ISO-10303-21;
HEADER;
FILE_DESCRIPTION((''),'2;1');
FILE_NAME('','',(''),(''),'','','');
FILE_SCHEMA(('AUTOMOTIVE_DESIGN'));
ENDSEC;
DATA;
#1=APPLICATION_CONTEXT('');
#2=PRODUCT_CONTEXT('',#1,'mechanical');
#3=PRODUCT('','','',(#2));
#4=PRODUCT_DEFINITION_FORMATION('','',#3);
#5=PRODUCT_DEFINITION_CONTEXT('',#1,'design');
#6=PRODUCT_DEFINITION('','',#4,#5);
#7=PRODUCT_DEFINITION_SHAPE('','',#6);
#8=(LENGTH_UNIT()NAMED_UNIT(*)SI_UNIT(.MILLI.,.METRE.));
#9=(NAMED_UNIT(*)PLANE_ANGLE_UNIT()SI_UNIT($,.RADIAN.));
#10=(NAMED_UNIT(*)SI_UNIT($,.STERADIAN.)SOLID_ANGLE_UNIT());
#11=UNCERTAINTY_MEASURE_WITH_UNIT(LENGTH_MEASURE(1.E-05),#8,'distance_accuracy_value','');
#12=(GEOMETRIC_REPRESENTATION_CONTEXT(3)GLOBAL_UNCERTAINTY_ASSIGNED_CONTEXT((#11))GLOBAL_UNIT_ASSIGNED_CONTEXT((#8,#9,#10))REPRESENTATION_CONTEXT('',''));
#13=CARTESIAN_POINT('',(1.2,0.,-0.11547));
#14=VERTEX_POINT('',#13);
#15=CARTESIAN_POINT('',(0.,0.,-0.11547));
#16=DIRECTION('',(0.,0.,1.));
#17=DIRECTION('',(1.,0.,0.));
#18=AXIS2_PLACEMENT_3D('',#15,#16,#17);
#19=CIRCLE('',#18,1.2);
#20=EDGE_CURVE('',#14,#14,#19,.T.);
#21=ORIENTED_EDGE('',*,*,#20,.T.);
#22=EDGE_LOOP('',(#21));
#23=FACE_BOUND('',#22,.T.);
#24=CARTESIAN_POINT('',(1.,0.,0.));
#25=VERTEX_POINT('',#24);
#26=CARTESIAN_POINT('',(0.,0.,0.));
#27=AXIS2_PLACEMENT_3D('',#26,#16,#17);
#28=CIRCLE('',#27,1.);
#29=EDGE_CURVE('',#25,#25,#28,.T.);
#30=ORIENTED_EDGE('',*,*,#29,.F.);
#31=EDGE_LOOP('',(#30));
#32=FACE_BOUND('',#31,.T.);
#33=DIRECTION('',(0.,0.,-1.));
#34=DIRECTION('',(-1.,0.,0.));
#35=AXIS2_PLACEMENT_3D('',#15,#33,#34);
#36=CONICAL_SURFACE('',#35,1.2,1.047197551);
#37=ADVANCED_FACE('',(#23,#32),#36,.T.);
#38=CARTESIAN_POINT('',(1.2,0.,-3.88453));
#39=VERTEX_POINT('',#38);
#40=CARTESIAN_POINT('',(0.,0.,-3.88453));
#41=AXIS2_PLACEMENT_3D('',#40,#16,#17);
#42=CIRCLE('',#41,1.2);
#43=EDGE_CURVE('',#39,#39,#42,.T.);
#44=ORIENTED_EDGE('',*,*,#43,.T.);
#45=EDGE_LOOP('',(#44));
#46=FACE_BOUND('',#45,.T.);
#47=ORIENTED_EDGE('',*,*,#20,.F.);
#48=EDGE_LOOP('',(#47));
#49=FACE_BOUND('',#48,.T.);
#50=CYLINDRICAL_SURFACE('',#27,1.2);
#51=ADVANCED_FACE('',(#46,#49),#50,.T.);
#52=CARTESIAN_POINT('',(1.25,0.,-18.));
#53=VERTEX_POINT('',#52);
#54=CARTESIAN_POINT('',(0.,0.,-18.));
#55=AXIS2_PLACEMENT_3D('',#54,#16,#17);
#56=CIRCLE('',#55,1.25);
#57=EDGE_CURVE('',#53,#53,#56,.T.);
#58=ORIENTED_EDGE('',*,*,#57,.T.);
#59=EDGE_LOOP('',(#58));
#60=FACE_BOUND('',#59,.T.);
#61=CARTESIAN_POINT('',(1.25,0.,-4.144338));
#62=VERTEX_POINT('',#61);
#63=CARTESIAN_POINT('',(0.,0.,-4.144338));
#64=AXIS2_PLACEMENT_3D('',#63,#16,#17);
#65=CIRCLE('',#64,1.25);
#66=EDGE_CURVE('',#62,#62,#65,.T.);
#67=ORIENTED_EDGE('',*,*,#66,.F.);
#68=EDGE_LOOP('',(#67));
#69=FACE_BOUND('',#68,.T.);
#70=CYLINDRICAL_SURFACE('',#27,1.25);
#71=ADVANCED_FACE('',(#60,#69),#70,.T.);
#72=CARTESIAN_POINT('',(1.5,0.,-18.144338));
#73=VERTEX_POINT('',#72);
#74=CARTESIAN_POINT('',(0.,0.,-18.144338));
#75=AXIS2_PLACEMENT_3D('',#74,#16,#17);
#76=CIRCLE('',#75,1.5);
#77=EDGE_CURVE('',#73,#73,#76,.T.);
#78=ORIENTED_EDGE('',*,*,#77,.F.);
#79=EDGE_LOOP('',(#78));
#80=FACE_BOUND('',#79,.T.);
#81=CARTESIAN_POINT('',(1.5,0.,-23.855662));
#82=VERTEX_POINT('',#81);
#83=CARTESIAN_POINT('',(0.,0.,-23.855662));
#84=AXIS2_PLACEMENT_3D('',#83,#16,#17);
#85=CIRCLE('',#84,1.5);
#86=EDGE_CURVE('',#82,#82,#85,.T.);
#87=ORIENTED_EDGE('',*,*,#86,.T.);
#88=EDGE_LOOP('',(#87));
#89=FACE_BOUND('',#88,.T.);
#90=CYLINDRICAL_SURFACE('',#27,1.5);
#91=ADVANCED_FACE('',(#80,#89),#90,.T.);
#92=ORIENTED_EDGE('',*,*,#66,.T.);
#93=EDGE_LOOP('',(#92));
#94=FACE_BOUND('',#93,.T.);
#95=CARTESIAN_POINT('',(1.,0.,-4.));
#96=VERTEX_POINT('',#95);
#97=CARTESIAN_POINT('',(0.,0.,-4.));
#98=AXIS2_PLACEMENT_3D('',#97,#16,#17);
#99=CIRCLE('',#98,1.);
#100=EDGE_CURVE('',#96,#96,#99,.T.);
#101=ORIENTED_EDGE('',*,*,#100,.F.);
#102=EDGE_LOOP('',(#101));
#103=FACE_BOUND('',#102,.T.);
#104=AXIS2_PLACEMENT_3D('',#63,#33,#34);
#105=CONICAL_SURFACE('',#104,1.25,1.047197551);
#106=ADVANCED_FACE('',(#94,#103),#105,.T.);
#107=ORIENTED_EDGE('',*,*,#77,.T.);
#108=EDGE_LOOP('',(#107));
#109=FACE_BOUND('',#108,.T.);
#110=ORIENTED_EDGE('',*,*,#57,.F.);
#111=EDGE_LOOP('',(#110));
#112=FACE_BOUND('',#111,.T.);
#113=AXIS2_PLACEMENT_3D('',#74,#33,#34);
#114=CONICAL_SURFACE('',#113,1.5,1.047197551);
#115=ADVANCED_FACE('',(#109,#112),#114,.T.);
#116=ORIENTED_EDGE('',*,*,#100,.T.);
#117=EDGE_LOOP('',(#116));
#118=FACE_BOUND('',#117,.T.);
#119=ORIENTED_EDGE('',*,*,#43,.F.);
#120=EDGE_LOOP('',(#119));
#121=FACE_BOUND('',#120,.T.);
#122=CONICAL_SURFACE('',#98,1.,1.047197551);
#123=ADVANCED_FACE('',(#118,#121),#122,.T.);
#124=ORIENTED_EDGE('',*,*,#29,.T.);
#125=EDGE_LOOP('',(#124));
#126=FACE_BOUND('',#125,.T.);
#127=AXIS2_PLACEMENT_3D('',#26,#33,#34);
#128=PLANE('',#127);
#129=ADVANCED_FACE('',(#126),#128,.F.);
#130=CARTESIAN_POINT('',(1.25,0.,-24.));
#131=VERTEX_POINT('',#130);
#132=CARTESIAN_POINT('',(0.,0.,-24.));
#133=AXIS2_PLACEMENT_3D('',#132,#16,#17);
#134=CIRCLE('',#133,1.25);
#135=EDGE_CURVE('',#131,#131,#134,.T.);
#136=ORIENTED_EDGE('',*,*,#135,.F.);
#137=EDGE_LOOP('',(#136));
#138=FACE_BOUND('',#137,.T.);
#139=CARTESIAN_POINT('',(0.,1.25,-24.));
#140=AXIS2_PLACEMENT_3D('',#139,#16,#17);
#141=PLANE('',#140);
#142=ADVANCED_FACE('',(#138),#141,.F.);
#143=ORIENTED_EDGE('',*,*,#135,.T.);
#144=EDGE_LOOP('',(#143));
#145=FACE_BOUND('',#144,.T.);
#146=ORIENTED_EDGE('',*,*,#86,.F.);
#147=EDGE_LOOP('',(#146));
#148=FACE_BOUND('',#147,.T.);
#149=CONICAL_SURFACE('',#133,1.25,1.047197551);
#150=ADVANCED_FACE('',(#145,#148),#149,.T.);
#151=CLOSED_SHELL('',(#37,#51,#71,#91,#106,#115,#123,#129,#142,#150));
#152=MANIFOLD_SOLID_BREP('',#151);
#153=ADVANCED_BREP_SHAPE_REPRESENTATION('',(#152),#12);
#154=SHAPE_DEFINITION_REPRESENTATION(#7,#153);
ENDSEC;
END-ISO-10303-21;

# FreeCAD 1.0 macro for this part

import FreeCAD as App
import Part
import Sketcher
Q = App.Units.Quantity

doc = App.newDocument("Part")
body = doc.addObject("PartDesign::Body", "Body")

sketch1 = doc.addObject("Sketcher::SketchObject", "Sketch")
body.addObject(sketch1)
sketch1.AttachmentSupport = (doc.YZ_Plane, [""])
sketch1.MapMode = "FlatFace"
sketch1.addGeometry([
    Part.LineSegment(App.Vector(1, 0, 0), App.Vector(0, 0, 0)),
    Part.LineSegment(App.Vector(0, 0, 0), App.Vector(0, -24, 0)),
    Part.LineSegment(App.Vector(0, -24, 0), App.Vector(1.25, -24, 0)),
    Part.LineSegment(App.Vector(1.25, -24, 0), App.Vector(1.5, -23.86, 0)),
    Part.LineSegment(App.Vector(1.5, -23.86, 0), App.Vector(1.5, -18.14, 0)),
    Part.LineSegment(App.Vector(1.5, -18.14, 0), App.Vector(1.25, -18, 0)),
    Part.LineSegment(App.Vector(1.25, -18, 0), App.Vector(1.25, -4.14, 0)),
    Part.LineSegment(App.Vector(1.25, -4.14, 0), App.Vector(1, -4, 0)),
    Part.LineSegment(App.Vector(1, -4, 0), App.Vector(1.2, -3.88, 0)),
    Part.LineSegment(App.Vector(1.2, -3.88, 0), App.Vector(1.2, -0.12, 0)),
    Part.LineSegment(App.Vector(1.2, -0.12, 0), App.Vector(1, 0, 0)),
], False)
sketch1.addConstraint([
    Sketcher.Constraint("Coincident", 0, 2, 1, 1),
    Sketcher.Constraint("Coincident", 1, 2, 2, 1),
    Sketcher.Constraint("Coincident", 2, 2, 3, 1),
    Sketcher.Constraint("Coincident", 3, 2, 4, 1),
    Sketcher.Constraint("Coincident", 4, 2, 5, 1),
    Sketcher.Constraint("Coincident", 5, 2, 6, 1),
    Sketcher.Constraint("Coincident", 6, 2, 7, 1),
    Sketcher.Constraint("Coincident", 7, 2, 8, 1),
    Sketcher.Constraint("Coincident", 8, 2, 9, 1),
    Sketcher.Constraint("Coincident", 9, 2, 10, 1),
    Sketcher.Constraint("Coincident", 10, 2, 0, 1),
    Sketcher.Constraint("Horizontal", 0),
    Sketcher.Constraint("Vertical", 1),
    Sketcher.Constraint("Horizontal", 2),
    Sketcher.Constraint("Vertical", 4),
    Sketcher.Constraint("Vertical", 6),
    Sketcher.Constraint("Vertical", 9),
    Sketcher.Constraint("Coincident", 0, 2, -1, 1),
    Sketcher.Constraint("Parallel", 5, 7),
    Sketcher.Constraint("Parallel", 3, 8),
    Sketcher.Constraint("Parallel", 7, 10),
    Sketcher.Constraint("Vertical", 2, 2, 5, 2),
    Sketcher.Constraint("Vertical", 7, 2, 10, 2),
    Sketcher.Constraint("Equal", 3, 5),
    Sketcher.Constraint("Equal", 5, 7),
    Sketcher.Constraint("DistanceX", 0, 2, 0, 1, 1.0),
    Sketcher.Constraint("DistanceY", 1, 2, 1, 1, 24.0),
    Sketcher.Constraint("Angle", 3, Q("30 deg")),
    Sketcher.Constraint("DistanceY", 5, 2, -1, 1, 18.0),
    Sketcher.Constraint("DistanceY", 7, 2, -1, 1, 4.0),
    Sketcher.Constraint("DistanceX", 2, 1, 2, 2, 1.25),
    Sketcher.Constraint("DistanceX", -1, 1, 8, 2, 1.2),
])
revolution = doc.addObject("PartDesign::Revolution", "Revolution")
body.addObject(revolution)
revolution.Profile = sketch1
revolution.ReferenceAxis = (sketch1, ["V_Axis"])
revolution.Angle = 360

doc.recompute()
